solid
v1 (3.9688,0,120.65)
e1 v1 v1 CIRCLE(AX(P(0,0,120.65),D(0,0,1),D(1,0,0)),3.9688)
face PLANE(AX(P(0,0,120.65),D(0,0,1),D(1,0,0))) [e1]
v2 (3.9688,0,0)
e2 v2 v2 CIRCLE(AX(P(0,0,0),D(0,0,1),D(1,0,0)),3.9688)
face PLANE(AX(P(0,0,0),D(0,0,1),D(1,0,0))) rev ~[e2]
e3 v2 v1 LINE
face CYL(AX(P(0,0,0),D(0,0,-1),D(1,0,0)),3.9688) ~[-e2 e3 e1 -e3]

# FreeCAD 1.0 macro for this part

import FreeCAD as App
import Part
import Sketcher
Q = App.Units.Quantity

doc = App.newDocument("Part")
params = doc.addObject("Spreadsheet::Sheet", "Params")
for row, (alias, value) in enumerate([
    ("sketch1_diameter", "0.3125 in"),
    ("pad1_length", "4.75 in"),
], start=1):
    params.set(f"A{row}", alias)
    params.set(f"B{row}", "=" + value)
    params.setAlias(f"B{row}", alias)

body = doc.addObject("PartDesign::Body", "Body")

# Sketch on XY plane
sketch1 = doc.addObject("Sketcher::SketchObject", "Sketch")
body.addObject(sketch1)
sketch1.AttachmentSupport = (doc.XY_Plane, [""])
sketch1.MapMode = "FlatFace"
sketch1.addGeometry(Part.Circle(App.Vector(0, 0, 0), App.Vector(0, 0, 1), 4), False)
sketch1.addConstraint(Sketcher.Constraint("Coincident", 0, 3, -1, 1))
sketch1.addConstraint(Sketcher.Constraint("Diameter", 0, Q("0.3125 in")))
sketch1.setExpression("Constraints[1]", "Params.sketch1_diameter")
pad1 = doc.addObject("PartDesign::Pad", "Pad")
body.addObject(pad1)
pad1.Profile = sketch1
pad1.setExpression("Length", "Params.pad1_length")

doc.recompute()
